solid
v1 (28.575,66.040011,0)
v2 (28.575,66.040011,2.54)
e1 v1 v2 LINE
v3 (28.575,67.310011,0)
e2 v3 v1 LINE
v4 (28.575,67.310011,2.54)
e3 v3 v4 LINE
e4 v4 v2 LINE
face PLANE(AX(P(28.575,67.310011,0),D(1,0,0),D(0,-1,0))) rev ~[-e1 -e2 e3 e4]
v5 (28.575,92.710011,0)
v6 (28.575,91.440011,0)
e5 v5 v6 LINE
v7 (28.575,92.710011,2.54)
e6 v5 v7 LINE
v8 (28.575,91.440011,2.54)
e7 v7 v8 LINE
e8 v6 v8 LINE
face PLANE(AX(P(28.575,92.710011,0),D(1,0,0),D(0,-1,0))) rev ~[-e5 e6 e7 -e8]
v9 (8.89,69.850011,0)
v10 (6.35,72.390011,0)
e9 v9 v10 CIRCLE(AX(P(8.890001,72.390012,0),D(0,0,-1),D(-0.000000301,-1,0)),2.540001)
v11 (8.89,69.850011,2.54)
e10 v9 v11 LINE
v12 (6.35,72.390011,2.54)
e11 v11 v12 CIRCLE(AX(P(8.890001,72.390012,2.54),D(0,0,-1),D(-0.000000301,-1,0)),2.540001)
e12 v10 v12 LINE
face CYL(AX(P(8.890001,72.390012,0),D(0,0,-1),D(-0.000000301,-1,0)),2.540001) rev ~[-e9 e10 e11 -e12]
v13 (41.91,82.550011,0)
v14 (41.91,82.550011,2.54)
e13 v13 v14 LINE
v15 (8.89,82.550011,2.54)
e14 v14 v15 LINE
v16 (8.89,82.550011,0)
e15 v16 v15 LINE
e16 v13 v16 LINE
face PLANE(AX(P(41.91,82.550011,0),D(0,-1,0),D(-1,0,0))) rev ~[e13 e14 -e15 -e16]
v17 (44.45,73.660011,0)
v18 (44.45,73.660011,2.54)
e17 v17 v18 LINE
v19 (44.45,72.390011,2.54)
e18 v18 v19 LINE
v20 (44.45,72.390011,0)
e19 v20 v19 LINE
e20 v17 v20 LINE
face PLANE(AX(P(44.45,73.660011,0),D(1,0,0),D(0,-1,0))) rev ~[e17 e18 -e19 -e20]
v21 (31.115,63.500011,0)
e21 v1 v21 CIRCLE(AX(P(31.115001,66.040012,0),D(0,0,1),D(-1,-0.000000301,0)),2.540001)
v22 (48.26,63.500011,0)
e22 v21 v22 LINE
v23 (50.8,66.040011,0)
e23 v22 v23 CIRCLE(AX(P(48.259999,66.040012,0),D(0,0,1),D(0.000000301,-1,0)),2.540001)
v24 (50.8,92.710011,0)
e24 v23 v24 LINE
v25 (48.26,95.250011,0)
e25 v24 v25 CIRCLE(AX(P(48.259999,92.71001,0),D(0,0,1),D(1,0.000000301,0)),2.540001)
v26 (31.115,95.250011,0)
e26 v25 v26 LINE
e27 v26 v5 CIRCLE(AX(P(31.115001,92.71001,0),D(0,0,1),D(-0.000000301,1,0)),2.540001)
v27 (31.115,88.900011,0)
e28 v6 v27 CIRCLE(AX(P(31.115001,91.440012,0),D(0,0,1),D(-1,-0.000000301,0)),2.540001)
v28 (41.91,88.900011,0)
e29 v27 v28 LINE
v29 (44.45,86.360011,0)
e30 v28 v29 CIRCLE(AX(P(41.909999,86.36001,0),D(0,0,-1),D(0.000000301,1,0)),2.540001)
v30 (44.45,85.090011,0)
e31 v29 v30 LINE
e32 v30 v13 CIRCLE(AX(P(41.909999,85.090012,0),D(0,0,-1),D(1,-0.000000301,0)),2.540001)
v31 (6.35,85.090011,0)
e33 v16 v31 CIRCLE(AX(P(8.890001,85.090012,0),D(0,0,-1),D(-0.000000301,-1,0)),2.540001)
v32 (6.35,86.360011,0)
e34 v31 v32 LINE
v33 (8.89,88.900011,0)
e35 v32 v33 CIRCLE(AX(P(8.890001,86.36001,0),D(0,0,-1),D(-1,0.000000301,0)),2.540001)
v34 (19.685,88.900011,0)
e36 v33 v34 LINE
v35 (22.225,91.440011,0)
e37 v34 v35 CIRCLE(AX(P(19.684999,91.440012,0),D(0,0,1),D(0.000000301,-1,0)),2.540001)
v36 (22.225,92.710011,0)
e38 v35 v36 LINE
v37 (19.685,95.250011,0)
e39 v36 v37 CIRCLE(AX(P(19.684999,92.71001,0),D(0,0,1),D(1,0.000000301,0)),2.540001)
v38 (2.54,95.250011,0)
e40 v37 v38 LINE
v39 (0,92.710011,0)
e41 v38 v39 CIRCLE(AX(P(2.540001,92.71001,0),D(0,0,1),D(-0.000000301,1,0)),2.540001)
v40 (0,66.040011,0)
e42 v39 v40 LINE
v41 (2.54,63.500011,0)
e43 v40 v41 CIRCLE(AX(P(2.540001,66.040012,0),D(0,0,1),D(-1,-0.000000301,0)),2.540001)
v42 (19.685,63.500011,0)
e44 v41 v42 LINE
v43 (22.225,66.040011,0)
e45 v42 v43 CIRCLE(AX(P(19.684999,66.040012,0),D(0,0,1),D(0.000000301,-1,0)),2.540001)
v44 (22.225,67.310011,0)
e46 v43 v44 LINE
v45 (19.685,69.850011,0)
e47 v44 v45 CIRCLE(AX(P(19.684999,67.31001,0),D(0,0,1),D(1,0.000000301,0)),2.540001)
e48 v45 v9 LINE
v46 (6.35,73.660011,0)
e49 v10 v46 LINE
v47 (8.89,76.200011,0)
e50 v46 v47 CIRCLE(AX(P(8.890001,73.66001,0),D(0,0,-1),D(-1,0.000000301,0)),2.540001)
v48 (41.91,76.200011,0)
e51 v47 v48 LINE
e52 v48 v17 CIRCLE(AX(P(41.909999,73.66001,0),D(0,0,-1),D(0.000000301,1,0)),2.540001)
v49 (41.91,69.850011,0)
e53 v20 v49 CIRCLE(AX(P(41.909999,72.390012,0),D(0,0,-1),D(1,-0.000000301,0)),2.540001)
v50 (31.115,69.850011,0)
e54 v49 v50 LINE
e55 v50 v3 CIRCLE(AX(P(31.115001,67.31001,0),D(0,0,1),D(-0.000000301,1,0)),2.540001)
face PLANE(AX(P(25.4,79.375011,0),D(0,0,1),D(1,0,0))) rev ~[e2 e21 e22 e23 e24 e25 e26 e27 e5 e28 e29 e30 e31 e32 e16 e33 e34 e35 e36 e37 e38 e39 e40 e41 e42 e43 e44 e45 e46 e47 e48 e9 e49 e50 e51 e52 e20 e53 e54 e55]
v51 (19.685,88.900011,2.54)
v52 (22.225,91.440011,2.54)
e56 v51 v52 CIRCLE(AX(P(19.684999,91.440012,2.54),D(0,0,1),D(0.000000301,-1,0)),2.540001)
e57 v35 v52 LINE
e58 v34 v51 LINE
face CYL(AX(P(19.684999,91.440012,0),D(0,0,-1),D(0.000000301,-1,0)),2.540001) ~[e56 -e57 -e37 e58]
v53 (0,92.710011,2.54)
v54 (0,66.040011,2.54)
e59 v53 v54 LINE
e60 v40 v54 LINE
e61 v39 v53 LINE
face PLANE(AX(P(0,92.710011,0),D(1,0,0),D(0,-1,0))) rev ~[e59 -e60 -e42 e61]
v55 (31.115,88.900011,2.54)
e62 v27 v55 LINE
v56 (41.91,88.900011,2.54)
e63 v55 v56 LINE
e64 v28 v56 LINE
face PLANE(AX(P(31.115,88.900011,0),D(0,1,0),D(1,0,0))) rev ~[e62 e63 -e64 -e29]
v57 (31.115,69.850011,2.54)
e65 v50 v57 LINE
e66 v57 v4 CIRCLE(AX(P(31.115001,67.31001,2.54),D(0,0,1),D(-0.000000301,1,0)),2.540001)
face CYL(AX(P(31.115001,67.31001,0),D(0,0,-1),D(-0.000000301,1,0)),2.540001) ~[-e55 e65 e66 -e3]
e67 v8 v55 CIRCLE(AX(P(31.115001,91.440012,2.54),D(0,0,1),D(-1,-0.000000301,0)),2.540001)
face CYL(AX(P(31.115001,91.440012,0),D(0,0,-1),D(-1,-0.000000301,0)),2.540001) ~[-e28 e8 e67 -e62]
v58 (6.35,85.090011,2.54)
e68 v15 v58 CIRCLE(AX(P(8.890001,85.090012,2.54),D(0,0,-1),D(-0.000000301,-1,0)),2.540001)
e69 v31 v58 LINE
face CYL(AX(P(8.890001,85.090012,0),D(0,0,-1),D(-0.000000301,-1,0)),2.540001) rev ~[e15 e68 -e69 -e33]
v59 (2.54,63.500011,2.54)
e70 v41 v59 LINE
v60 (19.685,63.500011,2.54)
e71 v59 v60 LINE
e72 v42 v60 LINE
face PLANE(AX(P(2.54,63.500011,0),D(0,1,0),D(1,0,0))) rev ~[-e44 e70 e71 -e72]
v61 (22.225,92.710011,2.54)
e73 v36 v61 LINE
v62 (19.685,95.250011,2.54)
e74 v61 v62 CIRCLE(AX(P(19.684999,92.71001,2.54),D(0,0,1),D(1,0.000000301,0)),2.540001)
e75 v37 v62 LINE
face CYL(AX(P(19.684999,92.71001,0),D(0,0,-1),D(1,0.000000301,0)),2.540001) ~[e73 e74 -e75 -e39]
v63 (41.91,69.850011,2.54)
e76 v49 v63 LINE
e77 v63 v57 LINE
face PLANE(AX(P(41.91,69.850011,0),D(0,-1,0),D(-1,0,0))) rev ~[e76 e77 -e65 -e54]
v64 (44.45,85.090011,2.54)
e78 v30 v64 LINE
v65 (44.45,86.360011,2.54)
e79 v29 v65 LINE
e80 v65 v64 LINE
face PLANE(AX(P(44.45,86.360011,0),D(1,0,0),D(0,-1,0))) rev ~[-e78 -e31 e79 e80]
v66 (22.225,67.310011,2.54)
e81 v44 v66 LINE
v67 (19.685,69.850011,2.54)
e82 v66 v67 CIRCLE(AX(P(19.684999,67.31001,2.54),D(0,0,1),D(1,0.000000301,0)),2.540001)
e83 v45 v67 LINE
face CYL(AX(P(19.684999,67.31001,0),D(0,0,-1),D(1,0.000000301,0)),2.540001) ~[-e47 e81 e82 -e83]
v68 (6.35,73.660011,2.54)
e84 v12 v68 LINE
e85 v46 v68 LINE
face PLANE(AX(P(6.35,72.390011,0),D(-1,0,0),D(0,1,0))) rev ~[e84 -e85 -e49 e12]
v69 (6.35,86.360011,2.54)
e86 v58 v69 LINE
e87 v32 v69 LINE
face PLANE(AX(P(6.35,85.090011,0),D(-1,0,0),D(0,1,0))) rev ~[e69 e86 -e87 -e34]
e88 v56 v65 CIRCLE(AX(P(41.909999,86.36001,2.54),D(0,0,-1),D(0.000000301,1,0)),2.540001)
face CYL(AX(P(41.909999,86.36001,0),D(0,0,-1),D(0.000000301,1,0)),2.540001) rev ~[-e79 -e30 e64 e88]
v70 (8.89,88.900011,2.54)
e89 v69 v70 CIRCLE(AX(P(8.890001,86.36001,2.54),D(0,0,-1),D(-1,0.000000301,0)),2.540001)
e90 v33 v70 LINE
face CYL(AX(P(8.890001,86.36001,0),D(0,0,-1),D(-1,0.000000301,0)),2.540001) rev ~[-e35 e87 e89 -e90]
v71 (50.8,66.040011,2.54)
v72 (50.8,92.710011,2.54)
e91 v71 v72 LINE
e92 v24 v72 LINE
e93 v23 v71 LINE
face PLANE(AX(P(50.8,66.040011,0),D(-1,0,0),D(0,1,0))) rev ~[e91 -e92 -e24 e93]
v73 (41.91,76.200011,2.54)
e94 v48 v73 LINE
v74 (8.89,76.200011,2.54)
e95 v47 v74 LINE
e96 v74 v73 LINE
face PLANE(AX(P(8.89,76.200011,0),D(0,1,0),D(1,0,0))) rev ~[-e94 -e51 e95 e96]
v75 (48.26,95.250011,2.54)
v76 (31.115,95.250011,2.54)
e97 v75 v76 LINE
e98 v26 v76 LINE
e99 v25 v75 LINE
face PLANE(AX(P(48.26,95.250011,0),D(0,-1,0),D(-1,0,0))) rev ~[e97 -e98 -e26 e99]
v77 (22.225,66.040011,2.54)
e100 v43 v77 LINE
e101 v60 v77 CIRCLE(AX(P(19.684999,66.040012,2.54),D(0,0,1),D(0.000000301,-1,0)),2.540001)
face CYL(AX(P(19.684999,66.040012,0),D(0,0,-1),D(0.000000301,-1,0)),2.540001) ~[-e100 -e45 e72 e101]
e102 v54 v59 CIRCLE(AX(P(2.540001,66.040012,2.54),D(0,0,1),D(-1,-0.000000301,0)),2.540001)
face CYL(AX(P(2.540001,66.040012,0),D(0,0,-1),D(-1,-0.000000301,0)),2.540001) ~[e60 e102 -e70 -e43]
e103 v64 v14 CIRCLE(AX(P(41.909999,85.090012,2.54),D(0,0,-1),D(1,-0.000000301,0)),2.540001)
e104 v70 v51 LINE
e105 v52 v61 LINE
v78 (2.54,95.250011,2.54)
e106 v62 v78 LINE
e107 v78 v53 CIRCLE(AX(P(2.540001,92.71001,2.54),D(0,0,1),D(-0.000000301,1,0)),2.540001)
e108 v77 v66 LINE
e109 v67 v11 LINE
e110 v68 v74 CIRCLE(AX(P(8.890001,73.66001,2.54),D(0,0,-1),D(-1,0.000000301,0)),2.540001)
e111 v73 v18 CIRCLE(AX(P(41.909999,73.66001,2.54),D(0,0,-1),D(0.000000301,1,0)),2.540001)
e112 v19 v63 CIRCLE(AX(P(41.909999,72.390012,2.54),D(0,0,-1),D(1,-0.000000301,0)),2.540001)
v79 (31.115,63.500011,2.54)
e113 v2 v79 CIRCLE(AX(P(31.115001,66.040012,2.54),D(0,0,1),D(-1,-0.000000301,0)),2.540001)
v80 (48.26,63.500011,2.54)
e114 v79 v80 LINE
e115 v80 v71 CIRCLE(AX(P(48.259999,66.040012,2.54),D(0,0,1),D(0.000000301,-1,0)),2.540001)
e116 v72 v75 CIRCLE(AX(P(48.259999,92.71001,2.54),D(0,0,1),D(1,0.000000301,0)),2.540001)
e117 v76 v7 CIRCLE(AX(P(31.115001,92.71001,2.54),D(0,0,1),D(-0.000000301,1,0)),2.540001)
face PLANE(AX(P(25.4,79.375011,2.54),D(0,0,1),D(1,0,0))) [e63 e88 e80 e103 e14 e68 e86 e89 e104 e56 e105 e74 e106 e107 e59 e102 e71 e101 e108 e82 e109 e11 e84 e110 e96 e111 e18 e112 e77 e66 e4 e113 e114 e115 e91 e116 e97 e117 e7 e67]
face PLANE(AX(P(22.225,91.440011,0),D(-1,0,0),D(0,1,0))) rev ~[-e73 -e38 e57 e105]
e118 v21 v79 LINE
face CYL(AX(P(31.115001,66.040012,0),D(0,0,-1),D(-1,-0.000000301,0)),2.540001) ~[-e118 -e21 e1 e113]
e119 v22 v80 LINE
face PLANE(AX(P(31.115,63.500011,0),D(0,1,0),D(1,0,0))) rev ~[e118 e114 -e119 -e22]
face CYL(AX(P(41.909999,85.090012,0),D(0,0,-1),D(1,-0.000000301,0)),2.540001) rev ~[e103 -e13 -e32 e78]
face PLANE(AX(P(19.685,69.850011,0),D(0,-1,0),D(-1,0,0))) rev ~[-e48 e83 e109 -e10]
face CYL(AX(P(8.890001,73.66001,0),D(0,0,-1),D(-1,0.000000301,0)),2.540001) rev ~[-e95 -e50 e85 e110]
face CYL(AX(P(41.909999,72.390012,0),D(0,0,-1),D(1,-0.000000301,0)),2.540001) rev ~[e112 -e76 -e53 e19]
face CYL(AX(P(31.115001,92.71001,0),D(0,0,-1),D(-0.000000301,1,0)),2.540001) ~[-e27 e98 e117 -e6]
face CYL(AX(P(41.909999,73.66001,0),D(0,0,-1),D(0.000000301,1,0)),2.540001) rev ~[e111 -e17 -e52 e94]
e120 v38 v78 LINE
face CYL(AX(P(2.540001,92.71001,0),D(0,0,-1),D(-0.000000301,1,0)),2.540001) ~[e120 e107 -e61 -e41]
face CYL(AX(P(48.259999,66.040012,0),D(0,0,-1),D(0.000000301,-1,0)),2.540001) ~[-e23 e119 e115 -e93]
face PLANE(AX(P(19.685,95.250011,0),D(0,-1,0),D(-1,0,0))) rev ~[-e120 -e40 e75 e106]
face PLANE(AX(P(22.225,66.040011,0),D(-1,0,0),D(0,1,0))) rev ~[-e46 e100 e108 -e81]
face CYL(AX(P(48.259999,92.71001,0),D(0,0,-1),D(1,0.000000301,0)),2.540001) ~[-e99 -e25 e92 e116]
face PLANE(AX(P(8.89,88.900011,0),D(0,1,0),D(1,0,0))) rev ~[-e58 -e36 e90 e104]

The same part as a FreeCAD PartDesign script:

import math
import FreeCAD as App
import Part
import Sketcher
Q = App.Units.Quantity

doc = App.newDocument("Part")
body = doc.addObject("PartDesign::Body", "Body")

# Sketch on XY plane
sketch1 = doc.addObject("Sketcher::SketchObject", "Sketch")
body.addObject(sketch1)
sketch1.AttachmentSupport = (doc.XY_Plane, [""])
sketch1.MapMode = "FlatFace"
sketch1.addGeometry([
    Part.LineSegment(App.Vector(19.7, 95.3, 0), App.Vector(2.5, 95.3, 0)),  # 0
    Part.ArcOfCircle(Part.Circle(App.Vector(2.5, 92.7, 0), App.Vector(0, 0, 1), 2.5), math.radians(90), math.radians(180)),  # 1
    Part.LineSegment(App.Vector(0, 92.7, 0), App.Vector(0, 66, 0)),  # 2
    Part.ArcOfCircle(Part.Circle(App.Vector(2.5, 66, 0), App.Vector(0, 0, 1), 2.5), math.radians(-180), math.radians(-90)),  # 3
    Part.LineSegment(App.Vector(2.5, 63.5, 0), App.Vector(19.7, 63.5, 0)),  # 4
    Part.ArcOfCircle(Part.Circle(App.Vector(19.7, 66, 0), App.Vector(0, 0, 1), 2.5), math.radians(-90), math.radians(0)),  # 5
    Part.LineSegment(App.Vector(22.2, 66, 0), App.Vector(22.2, 67.3, 0)),  # 6
    Part.ArcOfCircle(Part.Circle(App.Vector(19.7, 67.3, 0), App.Vector(0, 0, 1), 2.5), math.radians(0), math.radians(90)),  # 7
    Part.LineSegment(App.Vector(19.7, 69.9, 0), App.Vector(8.9, 69.9, 0)),  # 8
    Part.ArcOfCircle(Part.Circle(App.Vector(8.9, 72.4, 0), App.Vector(0, 0, 1), 2.5), math.radians(-180), math.radians(-90)),  # 9
    Part.LineSegment(App.Vector(6.3, 72.4, 0), App.Vector(6.3, 73.7, 0)),  # 10
    Part.ArcOfCircle(Part.Circle(App.Vector(8.9, 73.7, 0), App.Vector(0, 0, 1), 2.5), math.radians(90), math.radians(180)),  # 11
    Part.LineSegment(App.Vector(8.9, 76.2, 0), App.Vector(41.9, 76.2, 0)),  # 12
    Part.ArcOfCircle(Part.Circle(App.Vector(41.9, 73.7, 0), App.Vector(0, 0, 1), 2.5), math.radians(0), math.radians(90)),  # 13
    Part.LineSegment(App.Vector(44.5, 73.7, 0), App.Vector(44.5, 72.4, 0)),  # 14
    Part.ArcOfCircle(Part.Circle(App.Vector(41.9, 72.4, 0), App.Vector(0, 0, 1), 2.5), math.radians(-90), math.radians(0)),  # 15
    Part.LineSegment(App.Vector(41.9, 69.9, 0), App.Vector(31.1, 69.9, 0)),  # 16
    Part.ArcOfCircle(Part.Circle(App.Vector(31.1, 67.3, 0), App.Vector(0, 0, 1), 2.5), math.radians(90), math.radians(180)),  # 17
    Part.LineSegment(App.Vector(28.6, 67.3, 0), App.Vector(28.6, 66, 0)),  # 18
    Part.ArcOfCircle(Part.Circle(App.Vector(31.1, 66, 0), App.Vector(0, 0, 1), 2.5), math.radians(-180), math.radians(-90)),  # 19
    Part.LineSegment(App.Vector(31.1, 63.5, 0), App.Vector(48.3, 63.5, 0)),  # 20
    Part.ArcOfCircle(Part.Circle(App.Vector(48.3, 66, 0), App.Vector(0, 0, 1), 2.5), math.radians(-90), math.radians(0)),  # 21
    Part.LineSegment(App.Vector(50.8, 66, 0), App.Vector(50.8, 92.7, 0)),  # 22
    Part.ArcOfCircle(Part.Circle(App.Vector(48.3, 92.7, 0), App.Vector(0, 0, 1), 2.5), math.radians(0), math.radians(90)),  # 23
    Part.LineSegment(App.Vector(48.3, 95.3, 0), App.Vector(31.1, 95.3, 0)),  # 24
    Part.ArcOfCircle(Part.Circle(App.Vector(31.1, 92.7, 0), App.Vector(0, 0, 1), 2.5), math.radians(90), math.radians(180)),  # 25
    Part.LineSegment(App.Vector(28.6, 92.7, 0), App.Vector(28.6, 91.4, 0)),  # 26
    Part.ArcOfCircle(Part.Circle(App.Vector(31.1, 91.4, 0), App.Vector(0, 0, 1), 2.5), math.radians(-180), math.radians(-90)),  # 27
    Part.LineSegment(App.Vector(31.1, 88.9, 0), App.Vector(41.9, 88.9, 0)),  # 28
    Part.ArcOfCircle(Part.Circle(App.Vector(41.9, 86.4, 0), App.Vector(0, 0, 1), 2.5), math.radians(0), math.radians(90)),  # 29
    Part.LineSegment(App.Vector(44.5, 86.4, 0), App.Vector(44.5, 85.1, 0)),  # 30
    Part.ArcOfCircle(Part.Circle(App.Vector(41.9, 85.1, 0), App.Vector(0, 0, 1), 2.5), math.radians(-90), math.radians(0)),  # 31
    Part.LineSegment(App.Vector(41.9, 82.6, 0), App.Vector(8.9, 82.6, 0)),  # 32
    Part.ArcOfCircle(Part.Circle(App.Vector(8.9, 85.1, 0), App.Vector(0, 0, 1), 2.5), math.radians(-180), math.radians(-90)),  # 33
    Part.LineSegment(App.Vector(6.3, 85.1, 0), App.Vector(6.3, 86.4, 0)),  # 34
    Part.ArcOfCircle(Part.Circle(App.Vector(8.9, 86.4, 0), App.Vector(0, 0, 1), 2.5), math.radians(90), math.radians(180)),  # 35
    Part.LineSegment(App.Vector(8.9, 88.9, 0), App.Vector(19.7, 88.9, 0)),  # 36
    Part.ArcOfCircle(Part.Circle(App.Vector(19.7, 91.4, 0), App.Vector(0, 0, 1), 2.5), math.radians(-90), math.radians(0)),  # 37
    Part.LineSegment(App.Vector(22.2, 91.4, 0), App.Vector(22.2, 92.7, 0)),  # 38
    Part.ArcOfCircle(Part.Circle(App.Vector(19.7, 92.7, 0), App.Vector(0, 0, 1), 2.5), math.radians(0), math.radians(90)),  # 39
], False)
sketch1.addConstraint([
    Sketcher.Constraint("Tangent", 0, 2, 1, 1),
    Sketcher.Constraint("Tangent", 1, 2, 2, 1),
    Sketcher.Constraint("Tangent", 2, 2, 3, 1),
    Sketcher.Constraint("Tangent", 3, 2, 4, 1),
    Sketcher.Constraint("Tangent", 4, 2, 5, 1),
    Sketcher.Constraint("Tangent", 5, 2, 6, 1),
    Sketcher.Constraint("Tangent", 6, 2, 7, 1),
    Sketcher.Constraint("Tangent", 7, 2, 8, 1),
    Sketcher.Constraint("Tangent", 8, 2, 9, 2),
    Sketcher.Constraint("Tangent", 9, 1, 10, 1),
    Sketcher.Constraint("Tangent", 10, 2, 11, 2),
    Sketcher.Constraint("Tangent", 11, 1, 12, 1),
    Sketcher.Constraint("Tangent", 12, 2, 13, 2),
    Sketcher.Constraint("Tangent", 13, 1, 14, 1),
    Sketcher.Constraint("Tangent", 14, 2, 15, 2),
    Sketcher.Constraint("Tangent", 15, 1, 16, 1),
    Sketcher.Constraint("Tangent", 16, 2, 17, 1),
    Sketcher.Constraint("Tangent", 17, 2, 18, 1),
    Sketcher.Constraint("Tangent", 18, 2, 19, 1),
    Sketcher.Constraint("Tangent", 19, 2, 20, 1),
    Sketcher.Constraint("Tangent", 20, 2, 21, 1),
    Sketcher.Constraint("Tangent", 21, 2, 22, 1),
    Sketcher.Constraint("Tangent", 22, 2, 23, 1),
    Sketcher.Constraint("Tangent", 23, 2, 24, 1),
    Sketcher.Constraint("Tangent", 24, 2, 25, 1),
    Sketcher.Constraint("Tangent", 25, 2, 26, 1),
    Sketcher.Constraint("Tangent", 26, 2, 27, 1),
    Sketcher.Constraint("Tangent", 27, 2, 28, 1),
    Sketcher.Constraint("Tangent", 28, 2, 29, 2),
    Sketcher.Constraint("Tangent", 29, 1, 30, 1),
    Sketcher.Constraint("Tangent", 30, 2, 31, 2),
    Sketcher.Constraint("Tangent", 31, 1, 32, 1),
    Sketcher.Constraint("Tangent", 32, 2, 33, 2),
    Sketcher.Constraint("Tangent", 33, 1, 34, 1),
    Sketcher.Constraint("Tangent", 34, 2, 35, 2),
    Sketcher.Constraint("Tangent", 35, 1, 36, 1),
    Sketcher.Constraint("Tangent", 36, 2, 37, 1),
    Sketcher.Constraint("Tangent", 37, 2, 38, 1),
    Sketcher.Constraint("Tangent", 38, 2, 39, 1),
    Sketcher.Constraint("Tangent", 39, 2, 0, 1),
    Sketcher.Constraint("Horizontal", 0),
    Sketcher.Constraint("Vertical", 2),
    Sketcher.Constraint("Horizontal", 4),
    Sketcher.Constraint("Vertical", 6),
    Sketcher.Constraint("Horizontal", 8),
    Sketcher.Constraint("Vertical", 10),
    Sketcher.Constraint("Horizontal", 12),
    Sketcher.Constraint("Vertical", 14),
    Sketcher.Constraint("Horizontal", 16),
    Sketcher.Constraint("Vertical", 18),
    Sketcher.Constraint("Horizontal", 20),
    Sketcher.Constraint("Vertical", 22),
    Sketcher.Constraint("Horizontal", 24),
    Sketcher.Constraint("Vertical", 26),
    Sketcher.Constraint("Horizontal", 28),
    Sketcher.Constraint("Vertical", 30),
    Sketcher.Constraint("Horizontal", 32),
    Sketcher.Constraint("Vertical", 34),
    Sketcher.Constraint("Horizontal", 36),
    Sketcher.Constraint("Vertical", 38),
    Sketcher.Constraint("Equal", 1, 3),
    Sketcher.Constraint("Equal", 3, 5),
    Sketcher.Constraint("Equal", 5, 7),
    Sketcher.Constraint("Equal", 7, 9),
    Sketcher.Constraint("Equal", 9, 11),
    Sketcher.Constraint("Equal", 11, 13),
    Sketcher.Constraint("Equal", 13, 15),
    Sketcher.Constraint("Equal", 15, 17),
    Sketcher.Constraint("Equal", 17, 19),
    Sketcher.Constraint("Equal", 19, 21),
    Sketcher.Constraint("Equal", 21, 23),
    Sketcher.Constraint("Equal", 23, 25),
    Sketcher.Constraint("Equal", 25, 27),
    Sketcher.Constraint("Equal", 27, 29),
    Sketcher.Constraint("Equal", 29, 31),
    Sketcher.Constraint("Equal", 31, 33),
    Sketcher.Constraint("Equal", 33, 35),
    Sketcher.Constraint("Equal", 35, 37),
    Sketcher.Constraint("Equal", 37, 39),
    Sketcher.Constraint("PointOnObject", 1, 2, -2),
    Sketcher.Constraint("Horizontal", 9, 3, 15, 3),
    Sketcher.Constraint("Horizontal", 5, 3, 19, 3),
    Sketcher.Constraint("Horizontal", 1, 3, 23, 3),
    Sketcher.Constraint("Horizontal", 29, 3, 35, 3),
    Sketcher.Constraint("Vertical", 19, 3, 25, 3),
    Sketcher.Constraint("Vertical", 15, 3, 29, 3),
    Sketcher.Constraint("Vertical", 11, 3, 33, 3),
    Sketcher.Constraint("Vertical", 7, 3, 37, 3),
    Sketcher.Constraint("Equal", 8, 16),
    Sketcher.Constraint("Equal", 4, 20),
    Sketcher.Constraint("Equal", 6, 10),
    Sketcher.Constraint("Equal", 18, 26),
    Sketcher.Constraint("Equal", 26, 30),
    Sketcher.Constraint("Radius", 1, Q("0.1 in")),
    Sketcher.Constraint("DistanceX", 12, 1, 12, 2, Q("1.3 in")),
    Sketcher.Constraint("DistanceX", -1, 1, 21, 2, Q("2 in")),
    Sketcher.Constraint("DistanceY", 7, 3, 1, 3, Q("1 in")),
    Sketcher.Constraint("DistanceY", 2, 2, 2, 1, Q("1.05 in")),
    Sketcher.Constraint("DistanceX", 0, 2, 0, 1, Q("0.675 in")),
    Sketcher.Constraint("DistanceY", -1, 1, 1, 3, 92.71001),
])
pad1 = doc.addObject("PartDesign::Pad", "Pad")
body.addObject(pad1)
pad1.Profile = sketch1
pad1.Length = Q("0.1 in")

doc.recompute()
